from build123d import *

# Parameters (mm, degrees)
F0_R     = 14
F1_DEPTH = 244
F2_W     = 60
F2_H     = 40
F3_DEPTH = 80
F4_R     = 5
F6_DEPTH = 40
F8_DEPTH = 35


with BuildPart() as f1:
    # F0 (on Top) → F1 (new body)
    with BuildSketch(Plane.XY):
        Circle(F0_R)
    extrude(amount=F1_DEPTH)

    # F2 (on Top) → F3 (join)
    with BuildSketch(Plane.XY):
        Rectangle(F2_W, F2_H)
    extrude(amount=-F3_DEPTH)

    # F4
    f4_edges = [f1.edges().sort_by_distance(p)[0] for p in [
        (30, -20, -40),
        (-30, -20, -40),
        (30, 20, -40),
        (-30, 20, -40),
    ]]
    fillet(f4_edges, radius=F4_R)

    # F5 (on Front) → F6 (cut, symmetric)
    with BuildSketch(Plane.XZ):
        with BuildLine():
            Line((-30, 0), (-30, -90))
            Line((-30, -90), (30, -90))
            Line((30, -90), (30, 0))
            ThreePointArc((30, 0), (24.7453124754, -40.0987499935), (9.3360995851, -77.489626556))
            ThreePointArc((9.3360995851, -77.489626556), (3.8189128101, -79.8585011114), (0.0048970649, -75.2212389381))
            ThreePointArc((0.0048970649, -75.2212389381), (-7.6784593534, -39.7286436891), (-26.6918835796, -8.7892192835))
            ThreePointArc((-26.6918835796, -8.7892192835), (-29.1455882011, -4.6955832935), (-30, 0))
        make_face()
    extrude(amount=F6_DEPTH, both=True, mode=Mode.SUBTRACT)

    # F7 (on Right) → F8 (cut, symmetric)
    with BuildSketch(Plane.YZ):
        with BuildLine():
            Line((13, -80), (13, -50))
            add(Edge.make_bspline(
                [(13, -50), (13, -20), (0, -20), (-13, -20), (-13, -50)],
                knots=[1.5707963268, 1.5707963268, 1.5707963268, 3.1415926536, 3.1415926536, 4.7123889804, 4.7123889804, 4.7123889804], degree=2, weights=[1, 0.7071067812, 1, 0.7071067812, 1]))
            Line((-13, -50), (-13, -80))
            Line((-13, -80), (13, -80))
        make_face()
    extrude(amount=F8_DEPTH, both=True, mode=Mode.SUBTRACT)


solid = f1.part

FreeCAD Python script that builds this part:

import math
import FreeCAD as App
import Part
import Sketcher

V = App.Vector


def edges_at(feature, points):
    """Names of the edges that pass closest to the given points."""
    edges = feature.Shape.Edges
    near = lambda p: min(range(len(edges)), key=lambda i: edges[i].distToShape(Part.Vertex(*p))[0])
    return sorted({f"Edge{near(p) + 1}" for p in points})


def add_polygon(sketch, points):
    """Adds a closed chain of lines whose ends are joined by coincident constraints."""
    first, n = sketch.GeometryCount, len(points)
    for a, b in zip(points, points[1:] + points[:1]):
        sketch.addGeometry(Part.LineSegment(App.Vector(*a, 0), App.Vector(*b, 0)), False)
    for i in range(n):
        sketch.addConstraint(Sketcher.Constraint("Coincident", first + i, 2, first + (i + 1) % n, 1))

doc = App.newDocument("Part")
params = doc.addObject("Spreadsheet::Sheet", "Params")
for row, (alias, value) in enumerate([
    ("sketch1_diameter", "28 mm"),
    ("pad1_length", "244 mm"),
    ("sketch2_width", "60 mm"),
    ("sketch2_height", "40 mm"),
    ("pad2_length", "80 mm"),
    ("fillet_radius", "5 mm"),
    ("sketch3_radius", "5 mm"),
    ("sketch3_radius2", "108 mm"),
    ("sketch3_width", "60 mm"),
    ("sketch3_height", "90 mm"),
    ("pocket1_length", "80 mm"),
    ("sketch4_height", "30 mm"),
    ("pocket2_length", "70 mm"),
], start=1):
    params.set(f"A{row}", alias)
    params.set(f"B{row}", "=" + value)
    params.setAlias(f"B{row}", alias)

body = doc.addObject("PartDesign::Body", "Body")

sketch1 = body.newObject("Sketcher::SketchObject", "Sketch")
sketch1.AttachmentSupport = (doc.getObject("XY_Plane"), [""])
sketch1.MapMode = "FlatFace"
sketch1.addGeometry(Part.Circle(V(0, 0, 0), V(0, 0, 1), 14), False)
sketch1.addConstraint(Sketcher.Constraint("Coincident", 0, 3, -1, 1))
sketch1.addConstraint(Sketcher.Constraint("Diameter", 0, 28.0))
sketch1.setExpression("Constraints[1]", "Params.sketch1_diameter")
pad1 = body.newObject("PartDesign::Pad", "Pad")
pad1.Profile = sketch1
pad1.setExpression("Length", "Params.pad1_length")

sketch2 = body.newObject("Sketcher::SketchObject", "Sketch001")
sketch2.AttachmentSupport = (doc.getObject("XY_Plane"), [""])
sketch2.MapMode = "FlatFace"
add_polygon(sketch2, [(-30, 20), (-30, -20), (30, -20), (30, 20)])
sketch2.addConstraint(Sketcher.Constraint("Vertical", 0))
sketch2.addConstraint(Sketcher.Constraint("Horizontal", 1))
sketch2.addConstraint(Sketcher.Constraint("Vertical", 2))
sketch2.addConstraint(Sketcher.Constraint("Horizontal", 3))
sketch2.addConstraint(Sketcher.Constraint("Symmetric", 0, 2, 2, 2, -1, 1))
sketch2.addConstraint(Sketcher.Constraint("DistanceX", 1, 1, 1, 2, 60.0))
sketch2.addConstraint(Sketcher.Constraint("DistanceY", 0, 2, 0, 1, 40.0))
sketch2.setExpression("Constraints[9]", "Params.sketch2_width")
sketch2.setExpression("Constraints[10]", "Params.sketch2_height")
pad2 = body.newObject("PartDesign::Pad", "Pad001")
pad2.Profile = sketch2
pad2.setExpression("Length", "Params.pad2_length")
pad2.Reversed = True
doc.recompute()

fillet = body.newObject("PartDesign::Fillet", "Fillet")
fillet.Base = (pad2, edges_at(pad2, [
    (30, -20, -40),
    (-30, -20, -40),
    (30, 20, -40),
    (-30, 20, -40),
]))
fillet.setExpression("Radius", "Params.fillet_radius")

sketch3 = body.newObject("Sketcher::SketchObject", "Sketch002")
sketch3.AttachmentSupport = (doc.getObject("XZ_Plane"), [""])
sketch3.MapMode = "FlatFace"
sketch3.addGeometry(Part.LineSegment(V(-30, 0, 0), V(-30, -90, 0)), False)
sketch3.addGeometry(Part.LineSegment(V(-30, -90, 0), V(30, -90, 0)), False)
sketch3.addGeometry(Part.LineSegment(V(30, -90, 0), V(30, 0, 0)), False)
sketch3.addGeometry(Part.ArcOfCircle(Part.Circle(V(-126, 0, 0), V(0, 0, 1), 156), math.radians(-30), math.radians(0)), False)
sketch3.addGeometry(Part.ArcOfCircle(Part.Circle(V(5, -75, 0), V(0, 0, 1), 5), math.radians(-177), math.radians(-30)), False)
sketch3.addGeometry(Part.ArcOfCircle(Part.Circle(V(-108, -80, 0), V(0, 0, 1), 108), math.radians(3), math.radians(41)), False)
sketch3.addGeometry(Part.ArcOfCircle(Part.Circle(V(-17, 0, 0), V(0, 0, 1), 13), math.radians(180), math.radians(221)), False)
sketch3.addConstraint(Sketcher.Constraint("Coincident", 0, 2, 1, 1))
sketch3.addConstraint(Sketcher.Constraint("Coincident", 1, 2, 2, 1))
sketch3.addConstraint(Sketcher.Constraint("Tangent", 2, 2, 3, 2))
sketch3.addConstraint(Sketcher.Constraint("Tangent", 3, 1, 4, 2))
sketch3.addConstraint(Sketcher.Constraint("Tangent", 4, 1, 5, 1))
sketch3.addConstraint(Sketcher.Constraint("Tangent", 5, 2, 6, 2))
sketch3.addConstraint(Sketcher.Constraint("Tangent", 6, 1, 0, 1))
sketch3.addConstraint(Sketcher.Constraint("Vertical", 0))
sketch3.addConstraint(Sketcher.Constraint("Horizontal", 1))
sketch3.addConstraint(Sketcher.Constraint("Vertical", 2))
sketch3.addConstraint(Sketcher.Constraint("Symmetric", 2, 2, 6, 1, -1, 1))
sketch3.addConstraint(Sketcher.Constraint("PointOnObject", 3, 3, -1))
sketch3.addConstraint(Sketcher.Constraint("Radius", 4, 5.0))
sketch3.addConstraint(Sketcher.Constraint("Radius", 5, 108.0))
sketch3.addConstraint(Sketcher.Constraint("DistanceX", 1, 1, 1, 2, 60.0))
sketch3.addConstraint(Sketcher.Constraint("DistanceY", 0, 2, 0, 1, 90.0))
sketch3.addConstraint(Sketcher.Constraint("DistanceX", -1, 1, 4, 3, 5.0))
sketch3.addConstraint(Sketcher.Constraint("DistanceY", 4, 3, -1, 1, 75.0))
sketch3.addConstraint(Sketcher.Constraint("DistanceY", 5, 3, -1, 1, 80.0))
sketch3.setExpression("Constraints[12]", "Params.sketch3_radius")
sketch3.setExpression("Constraints[13]", "Params.sketch3_radius2")
sketch3.setExpression("Constraints[14]", "Params.sketch3_width")
sketch3.setExpression("Constraints[15]", "Params.sketch3_height")
pocket1 = body.newObject("PartDesign::Pocket", "Pocket")
pocket1.Profile = sketch3
pocket1.setExpression("Length", "Params.pocket1_length")
pocket1.Midplane = True

sketch4 = body.newObject("Sketcher::SketchObject", "Sketch003")
sketch4.AttachmentSupport = (doc.getObject("YZ_Plane"), [""])
sketch4.MapMode = "FlatFace"
sketch4.addGeometry(Part.LineSegment(V(13, -80, 0), V(13, -50, 0)), False)
sketch4.addGeometry(Part.BSplineCurve([V(13, -50, 0), V(13, -20, 0), V(0, -20, 0), V(-13, -20, 0), V(-13, -50, 0)], [3, 2, 3], [1.570796327, 3.141592654, 4.71238898], False, 2, [1, 0.707106781, 1, 0.707106781, 1], False), False)
sketch4.addGeometry(Part.LineSegment(V(-13, -50, 0), V(-13, -80, 0)), False)
sketch4.addGeometry(Part.LineSegment(V(-13, -80, 0), V(13, -80, 0)), False)
sketch4.addConstraint(Sketcher.Constraint("Block", 1))
sketch4.addConstraint(Sketcher.Constraint("Coincident", 0, 2, 1, 1))
sketch4.addConstraint(Sketcher.Constraint("Coincident", 1, 2, 2, 1))
sketch4.addConstraint(Sketcher.Constraint("Coincident", 2, 2, 3, 1))
sketch4.addConstraint(Sketcher.Constraint("Coincident", 3, 2, 0, 1))
sketch4.addConstraint(Sketcher.Constraint("Vertical", 0))
sketch4.addConstraint(Sketcher.Constraint("Vertical", 2))
sketch4.addConstraint(Sketcher.Constraint("Horizontal", 3))
sketch4.addConstraint(Sketcher.Constraint("DistanceY", 0, 1, 0, 2, 30.0))
sketch4.setExpression("Constraints[8]", "Params.sketch4_height")
pocket2 = body.newObject("PartDesign::Pocket", "Pocket001")
pocket2.Profile = sketch4
pocket2.setExpression("Length", "Params.pocket2_length")
pocket2.Midplane = True

doc.recompute()
